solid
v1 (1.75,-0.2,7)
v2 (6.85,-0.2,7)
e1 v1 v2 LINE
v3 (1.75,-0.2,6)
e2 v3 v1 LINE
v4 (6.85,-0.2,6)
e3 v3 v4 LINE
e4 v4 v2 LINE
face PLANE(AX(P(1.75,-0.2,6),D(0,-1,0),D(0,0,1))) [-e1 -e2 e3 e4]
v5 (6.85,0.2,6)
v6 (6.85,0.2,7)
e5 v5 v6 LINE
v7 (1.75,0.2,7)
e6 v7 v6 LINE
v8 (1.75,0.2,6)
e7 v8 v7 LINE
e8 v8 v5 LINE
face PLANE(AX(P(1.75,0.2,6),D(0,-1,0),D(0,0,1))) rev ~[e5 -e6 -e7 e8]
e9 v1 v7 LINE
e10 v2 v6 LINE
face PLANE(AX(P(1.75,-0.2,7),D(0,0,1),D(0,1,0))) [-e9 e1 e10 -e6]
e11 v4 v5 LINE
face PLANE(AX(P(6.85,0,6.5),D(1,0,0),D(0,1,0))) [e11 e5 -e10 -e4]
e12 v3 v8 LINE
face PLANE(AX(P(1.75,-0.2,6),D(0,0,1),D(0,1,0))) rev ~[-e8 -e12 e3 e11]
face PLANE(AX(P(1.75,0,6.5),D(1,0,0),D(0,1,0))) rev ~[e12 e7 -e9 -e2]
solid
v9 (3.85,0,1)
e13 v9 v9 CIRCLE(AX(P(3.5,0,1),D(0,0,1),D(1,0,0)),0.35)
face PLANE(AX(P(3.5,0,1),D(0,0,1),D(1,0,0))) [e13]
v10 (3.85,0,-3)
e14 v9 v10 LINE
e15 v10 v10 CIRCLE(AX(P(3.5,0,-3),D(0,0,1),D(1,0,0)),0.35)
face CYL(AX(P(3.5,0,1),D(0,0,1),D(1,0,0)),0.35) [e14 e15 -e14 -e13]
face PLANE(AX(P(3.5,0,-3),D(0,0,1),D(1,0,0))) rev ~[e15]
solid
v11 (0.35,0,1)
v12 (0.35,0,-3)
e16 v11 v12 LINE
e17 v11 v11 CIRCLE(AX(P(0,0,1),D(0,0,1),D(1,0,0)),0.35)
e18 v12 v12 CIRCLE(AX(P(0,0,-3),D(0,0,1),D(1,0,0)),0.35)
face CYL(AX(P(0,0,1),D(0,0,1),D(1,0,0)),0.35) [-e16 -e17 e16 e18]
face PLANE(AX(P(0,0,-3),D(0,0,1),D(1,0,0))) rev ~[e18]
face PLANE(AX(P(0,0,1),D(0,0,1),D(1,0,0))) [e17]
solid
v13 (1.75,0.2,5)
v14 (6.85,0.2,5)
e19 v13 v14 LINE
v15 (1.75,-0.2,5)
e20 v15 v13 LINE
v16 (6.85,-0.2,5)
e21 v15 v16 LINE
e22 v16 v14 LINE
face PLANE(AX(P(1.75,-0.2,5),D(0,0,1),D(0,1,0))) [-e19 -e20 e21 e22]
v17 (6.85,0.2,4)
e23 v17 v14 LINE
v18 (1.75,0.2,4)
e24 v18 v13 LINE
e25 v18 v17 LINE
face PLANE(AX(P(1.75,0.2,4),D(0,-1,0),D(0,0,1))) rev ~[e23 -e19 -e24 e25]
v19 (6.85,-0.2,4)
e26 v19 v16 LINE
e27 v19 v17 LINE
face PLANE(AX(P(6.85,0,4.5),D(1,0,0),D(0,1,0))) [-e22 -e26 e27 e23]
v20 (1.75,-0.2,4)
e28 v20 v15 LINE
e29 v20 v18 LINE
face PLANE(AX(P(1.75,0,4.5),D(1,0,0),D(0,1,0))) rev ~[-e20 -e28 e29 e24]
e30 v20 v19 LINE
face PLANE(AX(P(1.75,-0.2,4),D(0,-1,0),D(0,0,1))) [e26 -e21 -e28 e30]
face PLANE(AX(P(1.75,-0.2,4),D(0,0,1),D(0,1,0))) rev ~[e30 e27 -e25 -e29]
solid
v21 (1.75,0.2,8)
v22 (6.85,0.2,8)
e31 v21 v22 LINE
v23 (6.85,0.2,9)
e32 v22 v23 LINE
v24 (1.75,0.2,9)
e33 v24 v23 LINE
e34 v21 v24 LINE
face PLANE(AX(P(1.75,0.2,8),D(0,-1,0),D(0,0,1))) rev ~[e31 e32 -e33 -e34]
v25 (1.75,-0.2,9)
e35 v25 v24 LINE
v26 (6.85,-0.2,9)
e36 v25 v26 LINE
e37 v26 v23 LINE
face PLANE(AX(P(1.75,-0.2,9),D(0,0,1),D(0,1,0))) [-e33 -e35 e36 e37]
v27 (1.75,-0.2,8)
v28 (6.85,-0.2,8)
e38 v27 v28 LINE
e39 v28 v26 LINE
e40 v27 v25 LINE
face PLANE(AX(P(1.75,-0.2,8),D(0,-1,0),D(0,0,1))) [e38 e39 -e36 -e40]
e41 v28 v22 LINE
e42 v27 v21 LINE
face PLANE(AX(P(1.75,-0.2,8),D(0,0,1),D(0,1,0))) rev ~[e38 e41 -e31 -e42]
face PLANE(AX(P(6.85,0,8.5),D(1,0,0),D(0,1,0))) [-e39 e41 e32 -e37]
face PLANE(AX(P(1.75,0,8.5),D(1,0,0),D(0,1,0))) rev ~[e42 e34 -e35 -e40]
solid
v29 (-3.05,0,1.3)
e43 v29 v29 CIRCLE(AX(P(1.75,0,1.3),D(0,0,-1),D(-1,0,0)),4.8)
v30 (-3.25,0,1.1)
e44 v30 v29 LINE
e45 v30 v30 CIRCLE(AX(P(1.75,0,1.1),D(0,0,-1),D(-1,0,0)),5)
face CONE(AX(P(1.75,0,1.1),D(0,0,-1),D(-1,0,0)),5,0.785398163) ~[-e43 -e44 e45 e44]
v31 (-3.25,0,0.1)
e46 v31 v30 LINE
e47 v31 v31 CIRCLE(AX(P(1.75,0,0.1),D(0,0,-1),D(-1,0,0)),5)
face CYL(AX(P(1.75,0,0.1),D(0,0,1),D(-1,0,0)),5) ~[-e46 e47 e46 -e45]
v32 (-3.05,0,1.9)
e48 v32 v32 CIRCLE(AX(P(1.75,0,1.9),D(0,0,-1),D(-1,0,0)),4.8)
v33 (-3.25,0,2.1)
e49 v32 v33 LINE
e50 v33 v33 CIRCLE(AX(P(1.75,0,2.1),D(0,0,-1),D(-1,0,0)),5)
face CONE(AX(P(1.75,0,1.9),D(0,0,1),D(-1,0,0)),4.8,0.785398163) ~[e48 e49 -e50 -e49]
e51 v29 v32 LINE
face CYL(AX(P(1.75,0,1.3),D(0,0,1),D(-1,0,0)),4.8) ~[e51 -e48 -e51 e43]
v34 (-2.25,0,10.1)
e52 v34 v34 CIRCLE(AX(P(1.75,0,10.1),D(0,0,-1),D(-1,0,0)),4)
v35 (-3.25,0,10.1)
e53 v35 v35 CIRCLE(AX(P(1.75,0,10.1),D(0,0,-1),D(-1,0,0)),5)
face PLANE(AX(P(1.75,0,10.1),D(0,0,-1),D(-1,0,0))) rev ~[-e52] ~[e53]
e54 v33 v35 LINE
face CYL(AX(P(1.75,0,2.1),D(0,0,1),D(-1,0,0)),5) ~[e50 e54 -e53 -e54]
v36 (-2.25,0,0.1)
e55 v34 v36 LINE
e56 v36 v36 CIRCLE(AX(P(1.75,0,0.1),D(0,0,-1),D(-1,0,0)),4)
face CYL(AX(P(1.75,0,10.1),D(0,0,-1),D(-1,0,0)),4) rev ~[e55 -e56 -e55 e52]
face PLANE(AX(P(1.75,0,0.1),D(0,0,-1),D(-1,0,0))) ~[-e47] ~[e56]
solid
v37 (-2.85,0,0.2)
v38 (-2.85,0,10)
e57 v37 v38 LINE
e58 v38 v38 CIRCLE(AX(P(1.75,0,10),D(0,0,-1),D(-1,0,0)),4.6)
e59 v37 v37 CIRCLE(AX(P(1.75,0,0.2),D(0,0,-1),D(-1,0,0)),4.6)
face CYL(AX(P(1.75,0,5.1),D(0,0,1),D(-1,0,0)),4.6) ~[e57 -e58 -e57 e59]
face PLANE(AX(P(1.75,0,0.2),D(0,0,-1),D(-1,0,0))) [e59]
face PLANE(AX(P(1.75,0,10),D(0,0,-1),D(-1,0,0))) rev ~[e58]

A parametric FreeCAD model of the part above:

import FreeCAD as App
import Part
import Sketcher
from FreeCAD import Vector
Q = App.Units.Quantity


def add_polygon(sketch, points):
    """Adds a closed chain of lines whose ends are joined by coincident constraints."""
    first, n = sketch.GeometryCount, len(points)
    for a, b in zip(points, points[1:] + points[:1]):
        sketch.addGeometry(Part.LineSegment(App.Vector(*a, 0), App.Vector(*b, 0)), False)
    for i in range(n):
        sketch.addConstraint(Sketcher.Constraint("Coincident", first + i, 2, first + (i + 1) % n, 1))

doc = App.newDocument("Part")
body = doc.addObject("PartDesign::Body", "Body")

# Sketch on XZ plane
sketch1 = doc.addObject("Sketcher::SketchObject", "Sketch")
body.addObject(sketch1)
sketch1.AttachmentSupport = (doc.XZ_Plane, [""])
sketch1.MapMode = "FlatFace"
add_polygon(sketch1, [(-3.25, 1.1), (-3.25, 0.1), (-2.25, 0.1), (-2.25, 10.1), (-3.25, 10.1), (-3.25, 2.1), (-3.05, 1.9), (-3.05, 1.3)])  # lines 0-7
sketch1.addGeometry(Part.LineSegment(Vector(1.75, 10.1, 0), Vector(1.75, 0.1, 0)), True)  # axis
sketch1.addConstraint(Sketcher.Constraint("Vertical", 0))
sketch1.addConstraint(Sketcher.Constraint("Horizontal", 1))
sketch1.addConstraint(Sketcher.Constraint("Vertical", 2))
sketch1.addConstraint(Sketcher.Constraint("Horizontal", 3))
sketch1.addConstraint(Sketcher.Constraint("Vertical", 4))
sketch1.addConstraint(Sketcher.Constraint("Vertical", 6))
sketch1.addConstraint(Sketcher.Constraint("Vertical", 8))
sketch1.addConstraint(Sketcher.Constraint("Perpendicular", 5, 7))
sketch1.addConstraint(Sketcher.Constraint("Horizontal", 3, 2, 8, 1))
sketch1.addConstraint(Sketcher.Constraint("Horizontal", 1, 2, 8, 2))
sketch1.addConstraint(Sketcher.Constraint("Vertical", 0, 2, 3, 2))
sketch1.addConstraint(Sketcher.Constraint("Equal", 3, 0))
sketch1.addConstraint(Sketcher.Constraint("Equal", 5, 7))
sketch1.addConstraint(Sketcher.Constraint("DistanceX", 1, 1, 1, 2, Q("1 mm")))
sketch1.addConstraint(Sketcher.Constraint("DistanceY", 2, 1, 2, 2, Q("10 mm")))
sketch1.addConstraint(Sketcher.Constraint("DistanceY", 4, 2, 4, 1, Q("8 mm")))
sketch1.addConstraint(Sketcher.Constraint("DistanceY", 6, 2, 6, 1, Q("0.6 mm")))
sketch1.addConstraint(Sketcher.Constraint("DistanceX", 2, 2, 8, 1, Q("4 mm")))
sketch1.addConstraint(Sketcher.Constraint("DistanceY", -1, 1, 0, 2, Q("0.1 mm")))
sketch1.addConstraint(Sketcher.Constraint("DistanceX", 0, 2, -1, 1, Q("3.25 mm")))
revolution = doc.addObject("PartDesign::Revolution", "Revolution")
body.addObject(revolution)
revolution.Profile = sketch1
revolution.ReferenceAxis = (sketch1, ["Axis0"])
revolution.Angle = 360
body2 = doc.addObject("PartDesign::Body", "Body001")

# Sketch on XZ plane
sketch2 = doc.addObject("Sketcher::SketchObject", "Sketch001")
body2.addObject(sketch2)
sketch2.AttachmentSupport = (doc.getObject("XZ_Plane001"), [""])
sketch2.MapMode = "FlatFace"
add_polygon(sketch2, [(-2.85, 10), (-2.85, 0.2), (1.75, 0.2), (1.75, 10)])  # lines 0-3
sketch2.addGeometry(Part.LineSegment(Vector(1.75, 10, 0), Vector(1.75, 0.2, 0)), True)  # axis
sketch2.addConstraint(Sketcher.Constraint("Vertical", 0))
sketch2.addConstraint(Sketcher.Constraint("Horizontal", 1))
sketch2.addConstraint(Sketcher.Constraint("Vertical", 2))
sketch2.addConstraint(Sketcher.Constraint("Horizontal", 3))
sketch2.addConstraint(Sketcher.Constraint("Vertical", 4))
sketch2.addConstraint(Sketcher.Constraint("Coincident", 4, 1, 2, 2))
sketch2.addConstraint(Sketcher.Constraint("Horizontal", 0, 2, 4, 2))
sketch2.addConstraint(Sketcher.Constraint("DistanceX", 1, 1, 1, 2, Q("4.6 mm")))
sketch2.addConstraint(Sketcher.Constraint("DistanceY", 0, 2, 0, 1, Q("9.8 mm")))
sketch2.addConstraint(Sketcher.Constraint("DistanceY", -1, 1, 2, 2, Q("10 mm")))
sketch2.addConstraint(Sketcher.Constraint("DistanceX", 0, 2, -1, 1, Q("2.85 mm")))
revolution2 = doc.addObject("PartDesign::Revolution", "Revolution001")
body2.addObject(revolution2)
revolution2.Profile = sketch2
revolution2.ReferenceAxis = (sketch2, ["Axis0"])
revolution2.Angle = 360
body3 = doc.addObject("PartDesign::Body", "Body002")
body3.AllowCompound = True

# Sketch on XY plane
sketch3 = doc.addObject("Sketcher::SketchObject", "Sketch002")
body3.addObject(sketch3)
sketch3.AttachmentSupport = (doc.getObject("XY_Plane002"), [""])
sketch3.MapMode = "FlatFace"
sketch3.AttachmentOffset = App.Placement(Vector(0, 0, 1), App.Rotation())
sketch3.addGeometry(Part.Circle(Vector(0, 0, 0), Vector(0, 0, 1), 0.35), False)
sketch3.addGeometry(Part.Circle(Vector(3.5, 0, 0), Vector(0, 0, 1), 0.35), False)
sketch3.addConstraint(Sketcher.Constraint("Coincident", 0, 3, -1, 1))
sketch3.addConstraint(Sketcher.Constraint("Equal", 0, 1))
sketch3.addConstraint(Sketcher.Constraint("PointOnObject", 1, 3, -1))
sketch3.addConstraint(Sketcher.Constraint("Diameter", 0, Q("0.7 mm")))
sketch3.addConstraint(Sketcher.Constraint("DistanceX", -1, 1, 1, 3, Q("3.5 mm")))
pad1 = doc.addObject("PartDesign::Pad", "Pad")
body3.addObject(pad1)
pad1.Profile = sketch3
pad1.Length = 4
pad1.Reversed = True
body4 = doc.addObject("PartDesign::Body", "Body003")
body4.AllowCompound = True

# Sketch on YZ plane
sketch4 = doc.addObject("Sketcher::SketchObject", "Sketch003")
body4.addObject(sketch4)
sketch4.AttachmentSupport = (doc.getObject("YZ_Plane003"), [""])
sketch4.MapMode = "FlatFace"
sketch4.AttachmentOffset = App.Placement(Vector(0, 0, 1.75), App.Rotation())
add_polygon(sketch4, [(-0.2, 5), (-0.2, 4), (0.2, 4), (0.2, 5)])  # lines 0-3
add_polygon(sketch4, [(-0.2, 7), (-0.2, 6), (0.2, 6), (0.2, 7)])  # lines 4-7
add_polygon(sketch4, [(-0.2, 9), (-0.2, 8), (0.2, 8), (0.2, 9)])  # lines 8-11
sketch4.addConstraint(Sketcher.Constraint("Vertical", 0))
sketch4.addConstraint(Sketcher.Constraint("Horizontal", 1))
sketch4.addConstraint(Sketcher.Constraint("Vertical", 2))
sketch4.addConstraint(Sketcher.Constraint("Horizontal", 3))
sketch4.addConstraint(Sketcher.Constraint("Vertical", 4))
sketch4.addConstraint(Sketcher.Constraint("Horizontal", 5))
sketch4.addConstraint(Sketcher.Constraint("Vertical", 6))
sketch4.addConstraint(Sketcher.Constraint("Horizontal", 7))
sketch4.addConstraint(Sketcher.Constraint("Vertical", 8))
sketch4.addConstraint(Sketcher.Constraint("Horizontal", 9))
sketch4.addConstraint(Sketcher.Constraint("Vertical", 10))
sketch4.addConstraint(Sketcher.Constraint("Horizontal", 11))
sketch4.addConstraint(Sketcher.Constraint("Vertical", 3, 2, 4, 2))
sketch4.addConstraint(Sketcher.Constraint("Vertical", 2, 2, 5, 2))
sketch4.addConstraint(Sketcher.Constraint("Vertical", 7, 2, 8, 2))
sketch4.addConstraint(Sketcher.Constraint("Vertical", 6, 2, 9, 2))
sketch4.addConstraint(Sketcher.Constraint("Equal", 2, 4))
sketch4.addConstraint(Sketcher.Constraint("Equal", 6, 8))
sketch4.addConstraint(Sketcher.Constraint("DistanceY", 0, 2, 0, 1, Q("1 mm")))
sketch4.addConstraint(Sketcher.Constraint("DistanceX", 1, 1, 1, 2, Q("0.4 mm")))
sketch4.addConstraint(Sketcher.Constraint("DistanceY", -1, 1, 0, 2, Q("4 mm")))
sketch4.addConstraint(Sketcher.Constraint("DistanceY", -1, 1, 4, 2, Q("6 mm")))
sketch4.addConstraint(Sketcher.Constraint("DistanceY", -1, 1, 8, 2, Q("8 mm")))
sketch4.addConstraint(Sketcher.Constraint("DistanceX", 0, 2, -1, 1, Q("0.2 mm")))
pad2 = doc.addObject("PartDesign::Pad", "Pad001")
body4.addObject(pad2)
pad2.Profile = sketch4
pad2.Length = 5.1

doc.recompute()
